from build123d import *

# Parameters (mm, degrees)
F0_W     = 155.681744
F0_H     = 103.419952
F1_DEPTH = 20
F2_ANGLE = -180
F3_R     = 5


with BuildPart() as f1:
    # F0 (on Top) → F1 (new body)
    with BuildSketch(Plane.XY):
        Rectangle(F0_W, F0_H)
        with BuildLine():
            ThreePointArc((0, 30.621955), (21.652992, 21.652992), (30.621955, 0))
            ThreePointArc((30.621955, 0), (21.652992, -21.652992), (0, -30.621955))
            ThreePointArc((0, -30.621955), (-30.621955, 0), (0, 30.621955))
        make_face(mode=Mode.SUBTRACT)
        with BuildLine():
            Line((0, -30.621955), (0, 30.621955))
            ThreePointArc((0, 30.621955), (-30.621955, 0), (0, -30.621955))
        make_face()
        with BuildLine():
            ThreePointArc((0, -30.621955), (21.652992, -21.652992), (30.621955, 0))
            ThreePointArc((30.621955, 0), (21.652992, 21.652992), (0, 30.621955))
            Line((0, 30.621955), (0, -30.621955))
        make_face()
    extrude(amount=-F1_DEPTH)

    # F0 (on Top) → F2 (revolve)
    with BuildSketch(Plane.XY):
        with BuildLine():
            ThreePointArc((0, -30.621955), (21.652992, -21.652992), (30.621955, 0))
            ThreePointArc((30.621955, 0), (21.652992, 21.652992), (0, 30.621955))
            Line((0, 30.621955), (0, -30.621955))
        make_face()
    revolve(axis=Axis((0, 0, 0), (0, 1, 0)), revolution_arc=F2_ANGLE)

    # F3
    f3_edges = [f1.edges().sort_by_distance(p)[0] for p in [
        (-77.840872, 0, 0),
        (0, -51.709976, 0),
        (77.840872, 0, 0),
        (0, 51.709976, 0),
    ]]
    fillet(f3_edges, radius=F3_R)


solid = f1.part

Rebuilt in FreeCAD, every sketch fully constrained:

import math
import FreeCAD as App
import Part
import Sketcher

V = App.Vector
Q = App.Units.Quantity


def edges_at(feature, points):
    """Names of the edges that pass closest to the given points."""
    edges = feature.Shape.Edges
    near = lambda p: min(range(len(edges)), key=lambda i: edges[i].distToShape(Part.Vertex(*p))[0])
    return sorted({f"Edge{near(p) + 1}" for p in points})

doc = App.newDocument("Part")
body = doc.addObject("PartDesign::Body", "Body")

# Sketch on XY plane
sketch1 = doc.addObject("Sketcher::SketchObject", "Sketch")
body.addObject(sketch1)
sketch1.AttachmentSupport = (doc.XY_Plane, [""])
sketch1.MapMode = "FlatFace"
sketch1.addGeometry(Part.LineSegment(V(-78, 52, 0), V(-78, -52, 0)), False)
sketch1.addGeometry(Part.LineSegment(V(-78, -52, 0), V(78, -52, 0)), False)
sketch1.addGeometry(Part.LineSegment(V(78, -52, 0), V(78, 52, 0)), False)
sketch1.addGeometry(Part.LineSegment(V(78, 52, 0), V(-78, 52, 0)), False)
sketch1.addConstraint(Sketcher.Constraint("Coincident", 0, 2, 1, 1))
sketch1.addConstraint(Sketcher.Constraint("Coincident", 1, 2, 2, 1))
sketch1.addConstraint(Sketcher.Constraint("Coincident", 2, 2, 3, 1))
sketch1.addConstraint(Sketcher.Constraint("Coincident", 3, 2, 0, 1))
sketch1.addConstraint(Sketcher.Constraint("Vertical", 0))
sketch1.addConstraint(Sketcher.Constraint("Horizontal", 1))
sketch1.addConstraint(Sketcher.Constraint("Vertical", 2))
sketch1.addConstraint(Sketcher.Constraint("Horizontal", 3))
sketch1.addConstraint(Sketcher.Constraint("Symmetric", 0, 2, 2, 2, -1, 1))
sketch1.addConstraint(Sketcher.Constraint("DistanceY", 0, 2, 0, 1, Q("103.419952 mm")))
sketch1.addConstraint(Sketcher.Constraint("DistanceX", 1, 1, 1, 2, Q("155.681744 mm")))
pad1 = doc.addObject("PartDesign::Pad", "Pad")
body.addObject(pad1)
pad1.Profile = sketch1
pad1.Length = 20
pad1.Reversed = True

# Sketch on XY plane
sketch2 = doc.addObject("Sketcher::SketchObject", "Sketch001")
body.addObject(sketch2)
sketch2.AttachmentSupport = (doc.XY_Plane, [""])
sketch2.MapMode = "FlatFace"
sketch2.addGeometry(Part.ArcOfCircle(Part.Circle(V(0, 0, 0), V(0, 0, 1), 31), math.radians(-90), math.radians(0)), False)
sketch2.addGeometry(Part.ArcOfCircle(Part.Circle(V(0, 0, 0), V(0, 0, 1), 31), math.radians(0), math.radians(90)), False)
sketch2.addGeometry(Part.LineSegment(V(0, 31, 0), V(0, -31, 0)), False)
sketch2.addConstraint(Sketcher.Constraint("Tangent", 0, 2, 1, 1))
sketch2.addConstraint(Sketcher.Constraint("Coincident", 1, 2, 2, 1))
sketch2.addConstraint(Sketcher.Constraint("Coincident", 2, 2, 0, 1))
sketch2.addConstraint(Sketcher.Constraint("Vertical", 2))
sketch2.addConstraint(Sketcher.Constraint("Coincident", 0, 3, -1, 1))
sketch2.addConstraint(Sketcher.Constraint("Equal", 0, 1))
sketch2.addConstraint(Sketcher.Constraint("PointOnObject", 0, 2, -1))
sketch2.addConstraint(Sketcher.Constraint("PointOnObject", 1, 2, -2))
sketch2.addConstraint(Sketcher.Constraint("Radius", 0, Q("30.621955 mm")))
revolution = doc.addObject("PartDesign::Revolution", "Revolution")
body.addObject(revolution)
revolution.Profile = sketch2
revolution.ReferenceAxis = (sketch2, ["V_Axis"])
revolution.Angle = 180
revolution.Reversed = True
doc.recompute()

fillet = doc.addObject("PartDesign::Fillet", "Fillet")
body.addObject(fillet)
fillet.Base = (revolution, edges_at(revolution, [
    (-77.841, 0, 0),
    (0, -51.71, 0),
    (77.841, 0, 0),
    (0, 51.71, 0),
]))
fillet.Radius = 5

doc.recompute()
